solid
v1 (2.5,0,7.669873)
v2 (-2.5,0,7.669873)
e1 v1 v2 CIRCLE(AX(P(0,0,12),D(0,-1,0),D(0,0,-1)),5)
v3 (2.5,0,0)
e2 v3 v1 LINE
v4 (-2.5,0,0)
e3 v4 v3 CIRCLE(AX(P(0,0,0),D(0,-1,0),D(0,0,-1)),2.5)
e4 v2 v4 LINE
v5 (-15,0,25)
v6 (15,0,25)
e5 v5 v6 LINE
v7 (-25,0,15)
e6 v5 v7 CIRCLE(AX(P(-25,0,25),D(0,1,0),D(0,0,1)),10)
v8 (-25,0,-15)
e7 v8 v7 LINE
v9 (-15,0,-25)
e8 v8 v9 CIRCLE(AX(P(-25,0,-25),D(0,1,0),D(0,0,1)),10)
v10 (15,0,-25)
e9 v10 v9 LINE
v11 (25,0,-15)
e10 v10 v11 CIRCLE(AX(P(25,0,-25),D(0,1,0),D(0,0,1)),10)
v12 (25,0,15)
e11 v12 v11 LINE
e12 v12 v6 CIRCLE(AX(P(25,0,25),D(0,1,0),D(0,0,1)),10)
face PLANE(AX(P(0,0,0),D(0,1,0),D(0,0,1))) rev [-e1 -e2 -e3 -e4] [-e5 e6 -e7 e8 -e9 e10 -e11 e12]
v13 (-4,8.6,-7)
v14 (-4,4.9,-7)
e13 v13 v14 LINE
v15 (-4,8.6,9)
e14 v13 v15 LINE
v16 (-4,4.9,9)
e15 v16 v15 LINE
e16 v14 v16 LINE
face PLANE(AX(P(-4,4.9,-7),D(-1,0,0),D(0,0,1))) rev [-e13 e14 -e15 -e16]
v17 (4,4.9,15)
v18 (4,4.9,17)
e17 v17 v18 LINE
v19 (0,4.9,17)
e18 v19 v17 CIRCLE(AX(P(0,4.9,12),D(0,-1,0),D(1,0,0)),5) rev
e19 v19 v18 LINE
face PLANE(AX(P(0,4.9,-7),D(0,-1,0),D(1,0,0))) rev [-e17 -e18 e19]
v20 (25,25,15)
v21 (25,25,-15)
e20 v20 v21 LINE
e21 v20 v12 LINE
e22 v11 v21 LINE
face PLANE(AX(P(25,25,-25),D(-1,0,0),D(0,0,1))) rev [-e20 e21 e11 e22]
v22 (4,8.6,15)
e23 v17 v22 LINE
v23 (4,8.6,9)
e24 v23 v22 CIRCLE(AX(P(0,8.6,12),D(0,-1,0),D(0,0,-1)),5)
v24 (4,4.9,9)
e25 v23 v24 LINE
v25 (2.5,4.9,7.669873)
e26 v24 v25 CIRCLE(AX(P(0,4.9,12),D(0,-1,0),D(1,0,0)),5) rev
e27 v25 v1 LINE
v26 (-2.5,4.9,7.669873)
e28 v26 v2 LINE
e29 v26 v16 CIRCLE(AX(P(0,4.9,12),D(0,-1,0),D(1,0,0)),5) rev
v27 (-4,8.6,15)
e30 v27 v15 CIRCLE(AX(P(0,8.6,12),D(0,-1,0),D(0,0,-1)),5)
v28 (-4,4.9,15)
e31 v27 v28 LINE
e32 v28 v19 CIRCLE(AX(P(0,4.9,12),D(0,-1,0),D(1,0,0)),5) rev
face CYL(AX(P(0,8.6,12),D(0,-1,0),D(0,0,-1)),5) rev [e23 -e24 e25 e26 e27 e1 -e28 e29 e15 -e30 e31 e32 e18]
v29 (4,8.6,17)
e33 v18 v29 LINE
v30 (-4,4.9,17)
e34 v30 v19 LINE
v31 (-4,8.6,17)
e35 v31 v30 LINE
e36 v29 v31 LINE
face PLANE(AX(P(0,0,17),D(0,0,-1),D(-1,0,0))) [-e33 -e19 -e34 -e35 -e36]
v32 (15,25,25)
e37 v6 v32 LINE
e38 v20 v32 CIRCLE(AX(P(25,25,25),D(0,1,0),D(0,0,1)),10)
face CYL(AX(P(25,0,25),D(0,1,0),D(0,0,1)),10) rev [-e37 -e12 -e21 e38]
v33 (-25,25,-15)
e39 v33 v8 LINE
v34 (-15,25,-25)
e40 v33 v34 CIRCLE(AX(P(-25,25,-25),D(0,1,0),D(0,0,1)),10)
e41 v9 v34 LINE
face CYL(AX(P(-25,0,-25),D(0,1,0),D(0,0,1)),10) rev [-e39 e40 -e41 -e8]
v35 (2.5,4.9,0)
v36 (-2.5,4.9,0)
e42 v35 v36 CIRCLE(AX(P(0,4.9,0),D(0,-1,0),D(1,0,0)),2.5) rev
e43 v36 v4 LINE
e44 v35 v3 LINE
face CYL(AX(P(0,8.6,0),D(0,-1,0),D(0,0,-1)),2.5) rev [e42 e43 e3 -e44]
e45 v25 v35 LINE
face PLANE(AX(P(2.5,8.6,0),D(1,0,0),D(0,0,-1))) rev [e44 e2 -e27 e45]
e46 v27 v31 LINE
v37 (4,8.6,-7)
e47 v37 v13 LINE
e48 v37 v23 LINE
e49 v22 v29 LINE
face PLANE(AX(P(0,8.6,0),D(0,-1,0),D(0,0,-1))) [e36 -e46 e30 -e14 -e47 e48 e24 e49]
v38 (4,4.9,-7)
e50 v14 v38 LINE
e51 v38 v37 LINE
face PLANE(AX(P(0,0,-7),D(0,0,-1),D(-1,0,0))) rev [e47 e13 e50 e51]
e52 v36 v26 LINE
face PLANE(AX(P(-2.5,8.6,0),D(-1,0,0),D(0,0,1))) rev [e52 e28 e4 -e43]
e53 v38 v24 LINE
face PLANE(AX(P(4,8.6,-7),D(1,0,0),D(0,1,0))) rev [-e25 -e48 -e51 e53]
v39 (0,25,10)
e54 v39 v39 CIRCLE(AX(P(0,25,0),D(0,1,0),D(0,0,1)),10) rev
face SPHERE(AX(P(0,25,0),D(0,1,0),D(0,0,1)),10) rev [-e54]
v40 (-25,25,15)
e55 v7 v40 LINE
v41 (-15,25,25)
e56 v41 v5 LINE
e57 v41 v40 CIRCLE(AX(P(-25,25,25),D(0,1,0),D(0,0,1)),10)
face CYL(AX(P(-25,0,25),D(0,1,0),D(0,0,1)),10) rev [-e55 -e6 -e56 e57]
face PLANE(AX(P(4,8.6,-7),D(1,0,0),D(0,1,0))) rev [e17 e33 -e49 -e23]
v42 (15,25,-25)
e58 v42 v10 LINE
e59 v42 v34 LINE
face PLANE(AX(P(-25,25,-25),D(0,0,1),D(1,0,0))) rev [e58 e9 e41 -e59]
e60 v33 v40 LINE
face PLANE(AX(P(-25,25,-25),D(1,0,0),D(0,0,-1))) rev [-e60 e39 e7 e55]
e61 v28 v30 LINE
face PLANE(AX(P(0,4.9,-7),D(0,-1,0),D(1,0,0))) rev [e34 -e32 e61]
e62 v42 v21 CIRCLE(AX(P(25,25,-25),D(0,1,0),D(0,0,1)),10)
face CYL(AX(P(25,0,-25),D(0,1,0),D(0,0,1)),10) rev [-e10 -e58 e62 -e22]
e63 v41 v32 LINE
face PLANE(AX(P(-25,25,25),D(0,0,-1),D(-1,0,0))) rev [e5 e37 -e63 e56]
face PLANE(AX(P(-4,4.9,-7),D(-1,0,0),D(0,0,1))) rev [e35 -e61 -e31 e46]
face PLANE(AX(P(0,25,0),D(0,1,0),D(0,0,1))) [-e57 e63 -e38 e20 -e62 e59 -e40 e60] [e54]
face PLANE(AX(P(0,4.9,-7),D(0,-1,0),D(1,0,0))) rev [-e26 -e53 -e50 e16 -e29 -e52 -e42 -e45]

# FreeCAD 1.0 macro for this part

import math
import FreeCAD as App
import Part
import Sketcher
from FreeCAD import Vector
Q = App.Units.Quantity


def add_polygon(sketch, points):
    """Adds a closed chain of lines whose ends are joined by coincident constraints."""
    first, n = sketch.GeometryCount, len(points)
    for a, b in zip(points, points[1:] + points[:1]):
        sketch.addGeometry(Part.LineSegment(App.Vector(*a, 0), App.Vector(*b, 0)), False)
    for i in range(n):
        sketch.addConstraint(Sketcher.Constraint("Coincident", first + i, 2, first + (i + 1) % n, 1))

doc = App.newDocument("Part")
body = doc.addObject("PartDesign::Body", "Body")

# Sketch on XZ plane
sketch1 = body.newObject("Sketcher::SketchObject", "Sketch")
sketch1.AttachmentSupport = (doc.getObject("XZ_Plane"), [""])
sketch1.MapMode = "FlatFace"
add_polygon(sketch1, [(-25, -25), (-25, 25), (25, 25), (25, -25)])  # lines 0-3
sketch1.addConstraint([
    Sketcher.Constraint("Vertical", 0),
    Sketcher.Constraint("Horizontal", 1),
    Sketcher.Constraint("Vertical", 2),
    Sketcher.Constraint("Horizontal", 3),
    Sketcher.Constraint("Symmetric", 0, 2, 2, 2, -1, 1),
    Sketcher.Constraint("Equal", 3, 0),
    Sketcher.Constraint("DistanceX", 1, 1, 1, 2, Q("50 mm")),
])
pad1 = body.newObject("PartDesign::Pad", "Pad")
pad1.Profile = sketch1
pad1.Length = 25
pad1.Reversed = True

# Sketch on XZ plane
sketch2 = body.newObject("Sketcher::SketchObject", "Sketch001")
sketch2.AttachmentSupport = (doc.getObject("XZ_Plane"), [""])
sketch2.MapMode = "FlatFace"
sketch2.AttachmentOffset = App.Placement(Vector(0, 0, -25), App.Rotation())
sketch2.addGeometry([
    Part.Circle(Vector(-25, 25, 0), Vector(0, 0, 1), 10),
    Part.Circle(Vector(-25, -25, 0), Vector(0, 0, 1), 10),
    Part.Circle(Vector(25, -25, 0), Vector(0, 0, 1), 10),
    Part.Circle(Vector(25, 25, 0), Vector(0, 0, 1), 10),
], False)
sketch2.addConstraint([
    Sketcher.Constraint("Equal", 0, 1),
    Sketcher.Constraint("Equal", 1, 2),
    Sketcher.Constraint("Equal", 2, 3),
    Sketcher.Constraint("Symmetric", 0, 3, 2, 3, -1, 1),
    Sketcher.Constraint("Symmetric", 1, 3, 3, 3, -1, 1),
    Sketcher.Constraint("Symmetric", 1, 3, 2, 3, -2),
    Sketcher.Constraint("Diameter", 0, Q("20 mm")),
    Sketcher.Constraint("DistanceX", 0, 3, -1, 1, Q("25 mm")),
    Sketcher.Constraint("DistanceY", -1, 1, 0, 3, Q("25 mm")),
])
pocket1 = body.newObject("PartDesign::Pocket", "Pocket")
pocket1.Profile = sketch2
pocket1.Length = 25
pocket1.Reversed = True

# Sketch on XZ plane
sketch3 = body.newObject("Sketcher::SketchObject", "Sketch002")
sketch3.AttachmentSupport = (doc.getObject("XZ_Plane"), [""])
sketch3.MapMode = "FlatFace"
sketch3.AttachmentOffset = App.Placement(Vector(0, 0, -25), App.Rotation())
sketch3.addGeometry([
    Part.LineSegment(Vector(0, 10, 0), Vector(0, -10, 0)),
    Part.ArcOfCircle(Part.Circle(Vector(0, 0, 0), Vector(0, 0, 1), 10), math.radians(90), math.radians(270)),
], False)
sketch3.addConstraint([
    Sketcher.Constraint("Coincident", 0, 1, 1, 1),
    Sketcher.Constraint("Coincident", 1, 2, 0, 2),
    Sketcher.Constraint("Vertical", 0),
    Sketcher.Constraint("Coincident", 1, 3, -1, 1),
    Sketcher.Constraint("PointOnObject", 0, 1, -2),
    Sketcher.Constraint("Radius", 1, Q("10 mm")),
])
groove = body.newObject("PartDesign::Groove", "Groove")
groove.Profile = sketch3
groove.ReferenceAxis = (sketch3, ["V_Axis"])
groove.Angle = 360

# Sketch on XZ plane
sketch4 = body.newObject("Sketcher::SketchObject", "Sketch003")
sketch4.AttachmentSupport = (doc.getObject("XZ_Plane"), [""])
sketch4.MapMode = "FlatFace"
sketch4.addGeometry([
    Part.LineSegment(Vector(2.5, 0, 0), Vector(2.5, 7.669873, 0)),  # 0
    Part.ArcOfCircle(Part.Circle(Vector(0, 12, 0), Vector(0, 0, 1), 5), math.radians(-60), math.radians(180)),  # 1
    Part.ArcOfCircle(Part.Circle(Vector(0, 12, 0), Vector(0, 0, 1), 5), math.radians(180), math.radians(240)),  # 2
    Part.LineSegment(Vector(-2.5, 7.669873, 0), Vector(-2.5, 0, 0)),  # 3
    Part.ArcOfCircle(Part.Circle(Vector(0, 0, 0), Vector(0, 0, 1), 2.5), math.radians(180), math.radians(360)),  # 4
], False)
sketch4.addConstraint([
    Sketcher.Constraint("Coincident", 0, 2, 1, 1),
    Sketcher.Constraint("Tangent", 1, 2, 2, 1),
    Sketcher.Constraint("Coincident", 2, 2, 3, 1),
    Sketcher.Constraint("Tangent", 3, 2, 4, 1),
    Sketcher.Constraint("Tangent", 4, 2, 0, 1),
    Sketcher.Constraint("Vertical", 0),
    Sketcher.Constraint("Vertical", 3),
    Sketcher.Constraint("Coincident", 4, 3, -1, 1),
    Sketcher.Constraint("Equal", 1, 2),
    Sketcher.Constraint("PointOnObject", 1, 3, -2),
    Sketcher.Constraint("Horizontal", 2, 3, 1, 2),
    Sketcher.Constraint("Radius", 1, Q("5 mm")),
    Sketcher.Constraint("Radius", 4, Q("2.5 mm")),
    Sketcher.Constraint("DistanceY", -1, 1, 1, 3, Q("12 mm")),
])
pocket2 = body.newObject("PartDesign::Pocket", "Pocket001")
pocket2.Profile = sketch4
pocket2.Length = 8.6

# Sketch on XY plane
sketch5 = body.newObject("Sketcher::SketchObject", "Sketch004")
sketch5.AttachmentSupport = (doc.getObject("XY_Plane"), [""])
sketch5.MapMode = "FlatFace"
sketch5.AttachmentOffset = App.Placement(Vector(0, 0, 17), App.Rotation())
add_polygon(sketch5, [(-4, 4.9), (4, 4.9), (4, 8.6), (-4, 8.6)])  # lines 0-3
sketch5.addConstraint([
    Sketcher.Constraint("Horizontal", 0),
    Sketcher.Constraint("Vertical", 1),
    Sketcher.Constraint("Horizontal", 2),
    Sketcher.Constraint("Vertical", 3),
    Sketcher.Constraint("DistanceX", 0, 1, 0, 2, Q("8 mm")),
    Sketcher.Constraint("DistanceY", 1, 1, 1, 2, Q("3.7 mm")),
    Sketcher.Constraint("DistanceX", -1, 1, 0, 2, Q("4 mm")),
    Sketcher.Constraint("DistanceY", -1, 1, 0, 2, Q("4.9 mm")),
])
pocket3 = body.newObject("PartDesign::Pocket", "Pocket002")
pocket3.Profile = sketch5
pocket3.Length = 24

doc.recompute()
